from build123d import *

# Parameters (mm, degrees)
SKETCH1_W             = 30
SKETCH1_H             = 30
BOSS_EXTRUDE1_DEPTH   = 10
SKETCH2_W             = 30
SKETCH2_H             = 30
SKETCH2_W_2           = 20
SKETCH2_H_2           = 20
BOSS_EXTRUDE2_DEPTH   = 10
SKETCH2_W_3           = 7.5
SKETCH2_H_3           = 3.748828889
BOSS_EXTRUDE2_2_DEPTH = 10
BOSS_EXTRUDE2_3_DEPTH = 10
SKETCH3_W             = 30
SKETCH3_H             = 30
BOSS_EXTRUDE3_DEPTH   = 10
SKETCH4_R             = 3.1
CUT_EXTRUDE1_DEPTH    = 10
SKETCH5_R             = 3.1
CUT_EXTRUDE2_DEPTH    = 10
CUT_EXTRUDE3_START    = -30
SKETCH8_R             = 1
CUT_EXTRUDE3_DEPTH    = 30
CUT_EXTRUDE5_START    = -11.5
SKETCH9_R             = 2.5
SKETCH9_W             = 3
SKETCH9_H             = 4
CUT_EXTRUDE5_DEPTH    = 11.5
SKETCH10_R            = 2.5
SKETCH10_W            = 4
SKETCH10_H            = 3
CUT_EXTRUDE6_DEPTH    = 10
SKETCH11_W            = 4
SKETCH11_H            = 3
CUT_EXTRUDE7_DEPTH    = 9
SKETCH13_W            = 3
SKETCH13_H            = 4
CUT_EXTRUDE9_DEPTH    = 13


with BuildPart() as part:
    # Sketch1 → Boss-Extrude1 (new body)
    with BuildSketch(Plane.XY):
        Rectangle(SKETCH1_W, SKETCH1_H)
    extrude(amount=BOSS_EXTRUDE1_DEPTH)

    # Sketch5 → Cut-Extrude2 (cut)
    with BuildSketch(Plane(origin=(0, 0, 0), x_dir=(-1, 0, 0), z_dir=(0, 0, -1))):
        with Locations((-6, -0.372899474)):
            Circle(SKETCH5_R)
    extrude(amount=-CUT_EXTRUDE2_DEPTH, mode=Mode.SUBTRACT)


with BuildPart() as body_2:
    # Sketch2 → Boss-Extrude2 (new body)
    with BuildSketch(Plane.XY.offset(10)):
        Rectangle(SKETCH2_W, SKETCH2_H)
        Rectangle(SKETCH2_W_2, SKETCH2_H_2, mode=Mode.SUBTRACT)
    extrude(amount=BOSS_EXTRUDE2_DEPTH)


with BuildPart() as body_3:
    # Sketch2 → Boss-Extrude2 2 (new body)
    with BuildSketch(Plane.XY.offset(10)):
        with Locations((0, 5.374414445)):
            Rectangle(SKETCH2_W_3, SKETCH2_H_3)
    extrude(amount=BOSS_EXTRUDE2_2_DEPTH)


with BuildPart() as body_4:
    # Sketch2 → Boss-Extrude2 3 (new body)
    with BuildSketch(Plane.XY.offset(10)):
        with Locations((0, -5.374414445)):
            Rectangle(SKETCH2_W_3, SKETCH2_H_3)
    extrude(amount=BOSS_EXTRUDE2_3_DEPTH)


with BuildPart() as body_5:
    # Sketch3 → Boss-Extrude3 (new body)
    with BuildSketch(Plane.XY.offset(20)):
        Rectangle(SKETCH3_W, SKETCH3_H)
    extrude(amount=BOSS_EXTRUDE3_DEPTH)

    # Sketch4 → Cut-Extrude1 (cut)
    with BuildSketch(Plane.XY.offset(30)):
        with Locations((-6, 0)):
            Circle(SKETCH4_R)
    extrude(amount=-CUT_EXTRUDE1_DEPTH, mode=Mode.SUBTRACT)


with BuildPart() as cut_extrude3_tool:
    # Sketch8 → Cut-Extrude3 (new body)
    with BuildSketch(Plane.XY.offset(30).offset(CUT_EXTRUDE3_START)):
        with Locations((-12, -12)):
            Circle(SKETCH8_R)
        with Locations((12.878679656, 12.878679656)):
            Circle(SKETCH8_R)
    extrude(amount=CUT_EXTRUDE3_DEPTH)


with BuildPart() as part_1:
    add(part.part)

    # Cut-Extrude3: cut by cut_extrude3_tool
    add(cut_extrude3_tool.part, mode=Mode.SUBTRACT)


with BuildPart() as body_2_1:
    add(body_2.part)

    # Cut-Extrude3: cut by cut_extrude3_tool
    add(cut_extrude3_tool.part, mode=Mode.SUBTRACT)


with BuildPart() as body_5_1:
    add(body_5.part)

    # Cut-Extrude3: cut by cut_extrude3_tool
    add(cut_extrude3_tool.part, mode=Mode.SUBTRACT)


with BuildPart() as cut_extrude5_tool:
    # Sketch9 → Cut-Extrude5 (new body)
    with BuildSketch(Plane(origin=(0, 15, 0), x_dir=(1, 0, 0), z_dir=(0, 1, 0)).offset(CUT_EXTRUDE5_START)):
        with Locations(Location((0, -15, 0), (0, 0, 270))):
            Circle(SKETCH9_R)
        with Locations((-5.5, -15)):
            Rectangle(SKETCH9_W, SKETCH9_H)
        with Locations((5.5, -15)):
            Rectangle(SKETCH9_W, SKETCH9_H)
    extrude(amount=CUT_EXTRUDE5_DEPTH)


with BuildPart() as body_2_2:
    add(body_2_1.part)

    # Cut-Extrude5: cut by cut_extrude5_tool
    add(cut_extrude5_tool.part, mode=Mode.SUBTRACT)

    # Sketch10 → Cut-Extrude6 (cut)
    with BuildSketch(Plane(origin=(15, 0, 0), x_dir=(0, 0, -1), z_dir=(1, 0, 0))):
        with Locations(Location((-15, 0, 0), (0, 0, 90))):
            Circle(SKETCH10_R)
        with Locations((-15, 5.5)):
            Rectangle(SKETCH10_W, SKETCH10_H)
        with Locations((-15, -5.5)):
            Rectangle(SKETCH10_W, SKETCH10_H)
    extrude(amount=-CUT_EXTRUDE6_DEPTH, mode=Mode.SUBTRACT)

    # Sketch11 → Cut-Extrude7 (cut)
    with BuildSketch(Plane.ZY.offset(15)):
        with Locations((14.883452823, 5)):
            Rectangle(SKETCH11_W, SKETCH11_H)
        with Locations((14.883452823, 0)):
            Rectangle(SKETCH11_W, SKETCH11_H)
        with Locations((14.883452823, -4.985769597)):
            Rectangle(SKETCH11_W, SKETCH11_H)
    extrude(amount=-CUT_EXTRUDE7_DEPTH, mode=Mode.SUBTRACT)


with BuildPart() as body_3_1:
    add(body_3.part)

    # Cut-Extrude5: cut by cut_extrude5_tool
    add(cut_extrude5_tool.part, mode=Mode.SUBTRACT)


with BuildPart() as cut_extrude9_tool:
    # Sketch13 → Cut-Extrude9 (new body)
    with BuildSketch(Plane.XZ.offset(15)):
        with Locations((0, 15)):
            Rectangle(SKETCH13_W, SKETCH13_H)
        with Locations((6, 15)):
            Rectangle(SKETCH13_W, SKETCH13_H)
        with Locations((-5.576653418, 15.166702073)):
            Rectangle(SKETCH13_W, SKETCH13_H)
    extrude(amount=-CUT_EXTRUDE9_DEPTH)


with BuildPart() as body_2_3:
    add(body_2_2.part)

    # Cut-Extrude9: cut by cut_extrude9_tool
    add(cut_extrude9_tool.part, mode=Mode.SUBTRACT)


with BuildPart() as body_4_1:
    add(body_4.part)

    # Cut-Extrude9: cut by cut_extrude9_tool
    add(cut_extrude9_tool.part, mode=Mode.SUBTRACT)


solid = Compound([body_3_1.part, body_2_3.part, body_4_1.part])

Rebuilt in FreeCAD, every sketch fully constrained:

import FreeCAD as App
import Part
import Sketcher
from FreeCAD import Vector
Q = App.Units.Quantity


def add_polygon(sketch, points):
    """Adds a closed chain of lines whose ends are joined by coincident constraints."""
    first, n = sketch.GeometryCount, len(points)
    for a, b in zip(points, points[1:] + points[:1]):
        sketch.addGeometry(Part.LineSegment(App.Vector(*a, 0), App.Vector(*b, 0)), False)
    for i in range(n):
        sketch.addConstraint(Sketcher.Constraint("Coincident", first + i, 2, first + (i + 1) % n, 1))

doc = App.newDocument("Part")
body = doc.addObject("PartDesign::Body", "Body")

# Sketch on XY plane
sketch1 = body.newObject("Sketcher::SketchObject", "Sketch")
sketch1.AttachmentSupport = (doc.getObject("XY_Plane"), [""])
sketch1.MapMode = "FlatFace"
add_polygon(sketch1, [(-15, 15), (-15, -15), (15, -15), (15, 15)])  # lines 0-3
sketch1.addConstraint([
    Sketcher.Constraint("Vertical", 0),
    Sketcher.Constraint("Horizontal", 1),
    Sketcher.Constraint("Vertical", 2),
    Sketcher.Constraint("Horizontal", 3),
    Sketcher.Constraint("Symmetric", 0, 2, 2, 2, -1, 1),
    Sketcher.Constraint("Equal", 3, 0),
    Sketcher.Constraint("DistanceX", 1, 1, 1, 2, Q("30 mm")),
])
pad1 = body.newObject("PartDesign::Pad", "Pad")
pad1.Profile = sketch1
pad1.Length = 10

# Sketch on XY plane
sketch2 = body.newObject("Sketcher::SketchObject", "Sketch001")
sketch2.AttachmentSupport = (doc.getObject("XY_Plane"), [""])
sketch2.MapMode = "FlatFace"
sketch2.addGeometry(Part.Circle(Vector(6, -0.372899, 0), Vector(0, 0, 1), 3.1), False)
sketch2.addConstraint([
    Sketcher.Constraint("Diameter", 0, Q("6.2 mm")),
    Sketcher.Constraint("DistanceX", -1, 1, 0, 3, Q("6 mm")),
    Sketcher.Constraint("DistanceY", 0, 3, -1, 1, Q("0.372899 mm")),
])
pocket1 = body.newObject("PartDesign::Pocket", "Pocket")
pocket1.Profile = sketch2
pocket1.Length = 10
pocket1.Reversed = True
body2 = doc.addObject("PartDesign::Body", "Body001")

# Sketch on XY plane
sketch3 = body2.newObject("Sketcher::SketchObject", "Sketch002")
sketch3.AttachmentSupport = (doc.getObject("XY_Plane001"), [""])
sketch3.MapMode = "FlatFace"
sketch3.AttachmentOffset = App.Placement(Vector(0, 0, 10), App.Rotation())
add_polygon(sketch3, [(-15, 15), (-15, -15), (15, -15), (15, 15)])  # lines 0-3
add_polygon(sketch3, [(10, -10), (-10, -10), (-10, 10), (10, 10)])  # lines 4-7
sketch3.addConstraint([
    Sketcher.Constraint("Vertical", 0),
    Sketcher.Constraint("Horizontal", 1),
    Sketcher.Constraint("Vertical", 2),
    Sketcher.Constraint("Horizontal", 3),
    Sketcher.Constraint("Horizontal", 4),
    Sketcher.Constraint("Vertical", 5),
    Sketcher.Constraint("Horizontal", 6),
    Sketcher.Constraint("Vertical", 7),
    Sketcher.Constraint("Symmetric", 0, 2, 2, 2, -1, 1),
    Sketcher.Constraint("Symmetric", 4, 2, 6, 2, -1, 1),
    Sketcher.Constraint("Equal", 3, 0),
    Sketcher.Constraint("Equal", 6, 5),
    Sketcher.Constraint("DistanceX", 1, 1, 1, 2, Q("30 mm")),
    Sketcher.Constraint("DistanceX", 4, 2, 4, 1, Q("20 mm")),
])
pad2 = body2.newObject("PartDesign::Pad", "Pad001")
pad2.Profile = sketch3
pad2.Length = 10
body3 = doc.addObject("PartDesign::Body", "Body002")

# Sketch on XY plane
sketch4 = body3.newObject("Sketcher::SketchObject", "Sketch003")
sketch4.AttachmentSupport = (doc.getObject("XY_Plane002"), [""])
sketch4.MapMode = "FlatFace"
sketch4.AttachmentOffset = App.Placement(Vector(0, 0, 10), App.Rotation())
add_polygon(sketch4, [(-3.75, 7.248829), (-3.75, 3.5), (3.75, 3.5), (3.75, 7.248829)])  # lines 0-3
sketch4.addConstraint([
    Sketcher.Constraint("Vertical", 0),
    Sketcher.Constraint("Horizontal", 1),
    Sketcher.Constraint("Vertical", 2),
    Sketcher.Constraint("Horizontal", 3),
    Sketcher.Constraint("DistanceX", 1, 1, 1, 2, Q("7.5 mm")),
    Sketcher.Constraint("DistanceY", -1, 1, 0, 2, Q("3.5 mm")),
    Sketcher.Constraint("DistanceX", 0, 2, -1, 1, Q("3.75 mm")),
    Sketcher.Constraint("DistanceY", 0, 2, 0, 1, Q("3.748829 mm")),
])
pad3 = body3.newObject("PartDesign::Pad", "Pad002")
pad3.Profile = sketch4
pad3.Length = 10
body4 = doc.addObject("PartDesign::Body", "Body003")

# Sketch on XY plane
sketch5 = body4.newObject("Sketcher::SketchObject", "Sketch004")
sketch5.AttachmentSupport = (doc.getObject("XY_Plane003"), [""])
sketch5.MapMode = "FlatFace"
sketch5.AttachmentOffset = App.Placement(Vector(0, 0, 10), App.Rotation())
add_polygon(sketch5, [(-3.75, -3.5), (-3.75, -7.248829), (3.75, -7.248829), (3.75, -3.5)])  # lines 0-3
sketch5.addConstraint([
    Sketcher.Constraint("Vertical", 0),
    Sketcher.Constraint("Horizontal", 1),
    Sketcher.Constraint("Vertical", 2),
    Sketcher.Constraint("Horizontal", 3),
    Sketcher.Constraint("DistanceX", 1, 1, 1, 2, Q("7.5 mm")),
    Sketcher.Constraint("DistanceY", 2, 2, -1, 1, Q("3.5 mm")),
    Sketcher.Constraint("DistanceX", 0, 2, -1, 1, Q("3.75 mm")),
    Sketcher.Constraint("DistanceY", 0, 2, 0, 1, Q("3.748829 mm")),
])
pad4 = body4.newObject("PartDesign::Pad", "Pad003")
pad4.Profile = sketch5
pad4.Length = 10
body5 = doc.addObject("PartDesign::Body", "Body004")

# Sketch on XY plane
sketch6 = body5.newObject("Sketcher::SketchObject", "Sketch005")
sketch6.AttachmentSupport = (doc.getObject("XY_Plane004"), [""])
sketch6.MapMode = "FlatFace"
sketch6.AttachmentOffset = App.Placement(Vector(0, 0, 20), App.Rotation())
add_polygon(sketch6, [(-15, 15), (-15, -15), (15, -15), (15, 15)])  # lines 0-3
sketch6.addConstraint([
    Sketcher.Constraint("Vertical", 0),
    Sketcher.Constraint("Horizontal", 1),
    Sketcher.Constraint("Vertical", 2),
    Sketcher.Constraint("Horizontal", 3),
    Sketcher.Constraint("Symmetric", 0, 2, 2, 2, -1, 1),
    Sketcher.Constraint("Equal", 3, 0),
    Sketcher.Constraint("DistanceX", 1, 1, 1, 2, Q("30 mm")),
])
pad5 = body5.newObject("PartDesign::Pad", "Pad004")
pad5.Profile = sketch6
pad5.Length = 10

# Sketch on XY plane
sketch7 = body5.newObject("Sketcher::SketchObject", "Sketch006")
sketch7.AttachmentSupport = (doc.getObject("XY_Plane004"), [""])
sketch7.MapMode = "FlatFace"
sketch7.AttachmentOffset = App.Placement(Vector(0, 0, 30), App.Rotation())
sketch7.addGeometry(Part.Circle(Vector(-6, 0, 0), Vector(0, 0, 1), 3.1), False)
sketch7.addConstraint([
    Sketcher.Constraint("PointOnObject", 0, 3, -1),
    Sketcher.Constraint("Diameter", 0, Q("6.2 mm")),
    Sketcher.Constraint("DistanceX", 0, 3, -1, 1, Q("6 mm")),
])
pocket2 = body5.newObject("PartDesign::Pocket", "Pocket001")
pocket2.Profile = sketch7
pocket2.Length = 10
body6 = doc.addObject("PartDesign::Body", "Body005")
body6.AllowCompound = True

# Sketch on XY plane
sketch8 = body6.newObject("Sketcher::SketchObject", "Sketch007")
sketch8.AttachmentSupport = (doc.getObject("XY_Plane005"), [""])
sketch8.MapMode = "FlatFace"
sketch8.addGeometry([
    Part.Circle(Vector(-12, -12, 0), Vector(0, 0, 1), 1),
    Part.Circle(Vector(12.87868, 12.87868, 0), Vector(0, 0, 1), 1),
], False)
sketch8.addConstraint([
    Sketcher.Constraint("Equal", 0, 1),
    Sketcher.Constraint("Diameter", 0, Q("2 mm")),
    Sketcher.Constraint("DistanceX", 0, 3, -1, 1, Q("12 mm")),
    Sketcher.Constraint("DistanceY", 0, 3, -1, 1, Q("12 mm")),
    Sketcher.Constraint("DistanceX", -1, 1, 1, 3, Q("12.87868 mm")),
    Sketcher.Constraint("DistanceY", -1, 1, 1, 3, Q("12.87868 mm")),
])
pad6 = body6.newObject("PartDesign::Pad", "Pad005")
pad6.Profile = sketch8
pad6.Length = 30
doc.recompute()

body7 = doc.addObject("PartDesign::Body", "Body006")
body7.BaseFeature = body6
boolean = body.newObject("PartDesign::Boolean", "Boolean")
boolean.Type = "Cut"
boolean.addObjects([body7])
doc.recompute()

body8 = doc.addObject("PartDesign::Body", "Body007")
body8.BaseFeature = body6
boolean2 = body2.newObject("PartDesign::Boolean", "Boolean001")
boolean2.Type = "Cut"
boolean2.addObjects([body8])
doc.recompute()

boolean3 = body5.newObject("PartDesign::Boolean", "Boolean002")
boolean3.Type = "Cut"
boolean3.addObjects([body6])
body9 = doc.addObject("PartDesign::Body", "Body008")
body9.AllowCompound = True

# Sketch on XZ plane
sketch9 = body9.newObject("Sketcher::SketchObject", "Sketch008")
sketch9.AttachmentSupport = (doc.getObject("XZ_Plane008"), [""])
sketch9.MapMode = "FlatFace"
sketch9.AttachmentOffset = App.Placement(Vector(0, 0, -3.5), App.Rotation())
sketch9.addGeometry(Part.Circle(Vector(0, 15, 0), Vector(0, 0, 1), 2.5), False)  # 0
add_polygon(sketch9, [(-7, 13), (-7, 17), (-4, 17), (-4, 13)])  # lines 1-4
add_polygon(sketch9, [(4, 13), (4, 17), (7, 17), (7, 13)])  # lines 5-8
sketch9.addConstraint([
    Sketcher.Constraint("Vertical", 1),
    Sketcher.Constraint("Horizontal", 2),
    Sketcher.Constraint("Vertical", 3),
    Sketcher.Constraint("Horizontal", 4),
    Sketcher.Constraint("Vertical", 5),
    Sketcher.Constraint("Horizontal", 6),
    Sketcher.Constraint("Vertical", 7),
    Sketcher.Constraint("Horizontal", 8),
    Sketcher.Constraint("Symmetric", 2, 2, 5, 2, -2),
    Sketcher.Constraint("Symmetric", 4, 2, 7, 2, -2),
    Sketcher.Constraint("PointOnObject", 0, 3, -2),
    Sketcher.Constraint("Diameter", 0, Q("5 mm")),
    Sketcher.Constraint("DistanceX", 2, 1, 2, 2, Q("3 mm")),
    Sketcher.Constraint("DistanceY", 1, 1, 1, 2, Q("4 mm")),
    Sketcher.Constraint("DistanceY", -1, 1, 0, 3, Q("15 mm")),
    Sketcher.Constraint("DistanceX", 1, 2, -1, 1, Q("7 mm")),
    Sketcher.Constraint("DistanceY", -1, 1, 1, 2, Q("17 mm")),
])
pad7 = body9.newObject("PartDesign::Pad", "Pad006")
pad7.Profile = sketch9
pad7.Length = 11.5
pad7.Reversed = True
doc.recompute()

body10 = doc.addObject("PartDesign::Body", "Body009")
body10.BaseFeature = body9
boolean4 = body2.newObject("PartDesign::Boolean", "Boolean003")
boolean4.Type = "Cut"
boolean4.addObjects([body10])
doc.recompute()

# Sketch on YZ plane
sketch10 = body2.newObject("Sketcher::SketchObject", "Sketch009")
sketch10.AttachmentSupport = (doc.getObject("YZ_Plane001"), [""])
sketch10.MapMode = "FlatFace"
sketch10.AttachmentOffset = App.Placement(Vector(0, 0, 15), App.Rotation())
sketch10.addGeometry(Part.Circle(Vector(0, 15, 0), Vector(0, 0, 1), 2.5), False)  # 0
add_polygon(sketch10, [(7, 17), (4, 17), (4, 13), (7, 13)])  # lines 1-4
add_polygon(sketch10, [(-4, 17), (-7, 17), (-7, 13), (-4, 13)])  # lines 5-8
sketch10.addConstraint([
    Sketcher.Constraint("Horizontal", 1),
    Sketcher.Constraint("Vertical", 2),
    Sketcher.Constraint("Horizontal", 3),
    Sketcher.Constraint("Vertical", 4),
    Sketcher.Constraint("Horizontal", 5),
    Sketcher.Constraint("Vertical", 6),
    Sketcher.Constraint("Horizontal", 7),
    Sketcher.Constraint("Vertical", 8),
    Sketcher.Constraint("Symmetric", 4, 2, 5, 2, -2),
    Sketcher.Constraint("Symmetric", 2, 2, 7, 2, -2),
    Sketcher.Constraint("PointOnObject", 0, 3, -2),
    Sketcher.Constraint("Diameter", 0, Q("5 mm")),
    Sketcher.Constraint("DistanceX", 1, 2, 1, 1, Q("3 mm")),
    Sketcher.Constraint("DistanceY", 2, 2, 2, 1, Q("4 mm")),
    Sketcher.Constraint("DistanceY", -1, 1, 0, 3, Q("15 mm")),
    Sketcher.Constraint("DistanceX", -1, 1, 1, 2, Q("4 mm")),
    Sketcher.Constraint("DistanceY", -1, 1, 1, 2, Q("17 mm")),
])
pocket3 = body2.newObject("PartDesign::Pocket", "Pocket002")
pocket3.Profile = sketch10
pocket3.Length = 10

# Sketch on YZ plane
sketch11 = body2.newObject("Sketcher::SketchObject", "Sketch010")
sketch11.AttachmentSupport = (doc.getObject("YZ_Plane001"), [""])
sketch11.MapMode = "FlatFace"
sketch11.AttachmentOffset = App.Placement(Vector(0, 0, -15), App.Rotation())
add_polygon(sketch11, [(6.5, 12.883453), (3.5, 12.883453), (3.5, 16.883453), (6.5, 16.883453)])  # lines 0-3
add_polygon(sketch11, [(1.5, 12.883453), (-1.5, 12.883453), (-1.5, 16.883453), (1.5, 16.883453)])  # lines 4-7
add_polygon(sketch11, [(-3.48577, 12.883453), (-6.48577, 12.883453), (-6.48577, 16.883453), (-3.48577, 16.883453)])  # lines 8-11
sketch11.addConstraint([
    Sketcher.Constraint("Horizontal", 0),
    Sketcher.Constraint("Vertical", 1),
    Sketcher.Constraint("Horizontal", 2),
    Sketcher.Constraint("Vertical", 3),
    Sketcher.Constraint("Horizontal", 4),
    Sketcher.Constraint("Vertical", 5),
    Sketcher.Constraint("Horizontal", 6),
    Sketcher.Constraint("Vertical", 7),
    Sketcher.Constraint("Horizontal", 8),
    Sketcher.Constraint("Vertical", 9),
    Sketcher.Constraint("Horizontal", 10),
    Sketcher.Constraint("Vertical", 11),
    Sketcher.Constraint("Horizontal", 3, 2, 4, 2),
    Sketcher.Constraint("Horizontal", 2, 2, 5, 2),
    Sketcher.Constraint("Horizontal", 7, 2, 8, 2),
    Sketcher.Constraint("Horizontal", 6, 2, 9, 2),
    Sketcher.Constraint("Equal", 2, 4),
    Sketcher.Constraint("Equal", 6, 8),
    Sketcher.Constraint("DistanceX", 0, 2, 0, 1, Q("3 mm")),
    Sketcher.Constraint("DistanceY", 1, 1, 1, 2, Q("4 mm")),
    Sketcher.Constraint("DistanceX", 4, 2, 0, 2, Q("5 mm")),
    Sketcher.Constraint("DistanceX", -1, 1, 0, 2, Q("3.5 mm")),
    Sketcher.Constraint("DistanceX", 8, 2, -1, 1, Q("6.48577 mm")),
    Sketcher.Constraint("DistanceY", -1, 1, 0, 2, Q("12.883453 mm")),
])
pocket4 = body2.newObject("PartDesign::Pocket", "Pocket003")
pocket4.Profile = sketch11
pocket4.Length = 9
pocket4.Reversed = True
doc.recompute()

boolean5 = body3.newObject("PartDesign::Boolean", "Boolean004")
boolean5.Type = "Cut"
boolean5.addObjects([body9])
body11 = doc.addObject("PartDesign::Body", "Body010")
body11.AllowCompound = True

# Sketch on XZ plane
sketch12 = body11.newObject("Sketcher::SketchObject", "Sketch011")
sketch12.AttachmentSupport = (doc.getObject("XZ_Plane010"), [""])
sketch12.MapMode = "FlatFace"
sketch12.AttachmentOffset = App.Placement(Vector(0, 0, 15), App.Rotation())
add_polygon(sketch12, [(-1.5, 17), (-1.5, 13), (1.5, 13), (1.5, 17)])  # lines 0-3
add_polygon(sketch12, [(4.5, 17), (4.5, 13), (7.5, 13), (7.5, 17)])  # lines 4-7
add_polygon(sketch12, [(-7.076653, 17.166702), (-7.076653, 13.166702), (-4.076653, 13.166702), (-4.076653, 17.166702)])  # lines 8-11
sketch12.addConstraint([
    Sketcher.Constraint("Vertical", 0),
    Sketcher.Constraint("Horizontal", 1),
    Sketcher.Constraint("Vertical", 2),
    Sketcher.Constraint("Horizontal", 3),
    Sketcher.Constraint("Vertical", 4),
    Sketcher.Constraint("Horizontal", 5),
    Sketcher.Constraint("Vertical", 6),
    Sketcher.Constraint("Horizontal", 7),
    Sketcher.Constraint("Vertical", 8),
    Sketcher.Constraint("Horizontal", 9),
    Sketcher.Constraint("Vertical", 10),
    Sketcher.Constraint("Horizontal", 11),
    Sketcher.Constraint("Horizontal", 1, 2, 4, 2),
    Sketcher.Constraint("Horizontal", 3, 2, 6, 2),
    Sketcher.Constraint("Equal", 3, 5),
    Sketcher.Constraint("Equal", 7, 9),
    Sketcher.Constraint("Equal", 6, 8),
    Sketcher.Constraint("DistanceX", 1, 1, 1, 2, Q("3 mm")),
    Sketcher.Constraint("DistanceY", 0, 2, 0, 1, Q("4 mm")),
    Sketcher.Constraint("DistanceY", -1, 1, 0, 2, Q("13 mm")),
    Sketcher.Constraint("DistanceX", 1, 2, 4, 2, Q("3 mm")),
    Sketcher.Constraint("DistanceX", 0, 2, -1, 1, Q("1.5 mm")),
    Sketcher.Constraint("DistanceX", 8, 2, -1, 1, Q("7.076653 mm")),
    Sketcher.Constraint("DistanceY", -1, 1, 8, 2, Q("13.166702 mm")),
])
pad8 = body11.newObject("PartDesign::Pad", "Pad007")
pad8.Profile = sketch12
pad8.Length = 13
pad8.Reversed = True
doc.recompute()

body12 = doc.addObject("PartDesign::Body", "Body011")
body12.BaseFeature = body11
boolean6 = body2.newObject("PartDesign::Boolean", "Boolean005")
boolean6.Type = "Cut"
boolean6.addObjects([body12])
doc.recompute()

boolean7 = body4.newObject("PartDesign::Boolean", "Boolean006")
boolean7.Type = "Cut"
boolean7.addObjects([body11])
body.Visibility = False
body5.Visibility = False

doc.recompute()
